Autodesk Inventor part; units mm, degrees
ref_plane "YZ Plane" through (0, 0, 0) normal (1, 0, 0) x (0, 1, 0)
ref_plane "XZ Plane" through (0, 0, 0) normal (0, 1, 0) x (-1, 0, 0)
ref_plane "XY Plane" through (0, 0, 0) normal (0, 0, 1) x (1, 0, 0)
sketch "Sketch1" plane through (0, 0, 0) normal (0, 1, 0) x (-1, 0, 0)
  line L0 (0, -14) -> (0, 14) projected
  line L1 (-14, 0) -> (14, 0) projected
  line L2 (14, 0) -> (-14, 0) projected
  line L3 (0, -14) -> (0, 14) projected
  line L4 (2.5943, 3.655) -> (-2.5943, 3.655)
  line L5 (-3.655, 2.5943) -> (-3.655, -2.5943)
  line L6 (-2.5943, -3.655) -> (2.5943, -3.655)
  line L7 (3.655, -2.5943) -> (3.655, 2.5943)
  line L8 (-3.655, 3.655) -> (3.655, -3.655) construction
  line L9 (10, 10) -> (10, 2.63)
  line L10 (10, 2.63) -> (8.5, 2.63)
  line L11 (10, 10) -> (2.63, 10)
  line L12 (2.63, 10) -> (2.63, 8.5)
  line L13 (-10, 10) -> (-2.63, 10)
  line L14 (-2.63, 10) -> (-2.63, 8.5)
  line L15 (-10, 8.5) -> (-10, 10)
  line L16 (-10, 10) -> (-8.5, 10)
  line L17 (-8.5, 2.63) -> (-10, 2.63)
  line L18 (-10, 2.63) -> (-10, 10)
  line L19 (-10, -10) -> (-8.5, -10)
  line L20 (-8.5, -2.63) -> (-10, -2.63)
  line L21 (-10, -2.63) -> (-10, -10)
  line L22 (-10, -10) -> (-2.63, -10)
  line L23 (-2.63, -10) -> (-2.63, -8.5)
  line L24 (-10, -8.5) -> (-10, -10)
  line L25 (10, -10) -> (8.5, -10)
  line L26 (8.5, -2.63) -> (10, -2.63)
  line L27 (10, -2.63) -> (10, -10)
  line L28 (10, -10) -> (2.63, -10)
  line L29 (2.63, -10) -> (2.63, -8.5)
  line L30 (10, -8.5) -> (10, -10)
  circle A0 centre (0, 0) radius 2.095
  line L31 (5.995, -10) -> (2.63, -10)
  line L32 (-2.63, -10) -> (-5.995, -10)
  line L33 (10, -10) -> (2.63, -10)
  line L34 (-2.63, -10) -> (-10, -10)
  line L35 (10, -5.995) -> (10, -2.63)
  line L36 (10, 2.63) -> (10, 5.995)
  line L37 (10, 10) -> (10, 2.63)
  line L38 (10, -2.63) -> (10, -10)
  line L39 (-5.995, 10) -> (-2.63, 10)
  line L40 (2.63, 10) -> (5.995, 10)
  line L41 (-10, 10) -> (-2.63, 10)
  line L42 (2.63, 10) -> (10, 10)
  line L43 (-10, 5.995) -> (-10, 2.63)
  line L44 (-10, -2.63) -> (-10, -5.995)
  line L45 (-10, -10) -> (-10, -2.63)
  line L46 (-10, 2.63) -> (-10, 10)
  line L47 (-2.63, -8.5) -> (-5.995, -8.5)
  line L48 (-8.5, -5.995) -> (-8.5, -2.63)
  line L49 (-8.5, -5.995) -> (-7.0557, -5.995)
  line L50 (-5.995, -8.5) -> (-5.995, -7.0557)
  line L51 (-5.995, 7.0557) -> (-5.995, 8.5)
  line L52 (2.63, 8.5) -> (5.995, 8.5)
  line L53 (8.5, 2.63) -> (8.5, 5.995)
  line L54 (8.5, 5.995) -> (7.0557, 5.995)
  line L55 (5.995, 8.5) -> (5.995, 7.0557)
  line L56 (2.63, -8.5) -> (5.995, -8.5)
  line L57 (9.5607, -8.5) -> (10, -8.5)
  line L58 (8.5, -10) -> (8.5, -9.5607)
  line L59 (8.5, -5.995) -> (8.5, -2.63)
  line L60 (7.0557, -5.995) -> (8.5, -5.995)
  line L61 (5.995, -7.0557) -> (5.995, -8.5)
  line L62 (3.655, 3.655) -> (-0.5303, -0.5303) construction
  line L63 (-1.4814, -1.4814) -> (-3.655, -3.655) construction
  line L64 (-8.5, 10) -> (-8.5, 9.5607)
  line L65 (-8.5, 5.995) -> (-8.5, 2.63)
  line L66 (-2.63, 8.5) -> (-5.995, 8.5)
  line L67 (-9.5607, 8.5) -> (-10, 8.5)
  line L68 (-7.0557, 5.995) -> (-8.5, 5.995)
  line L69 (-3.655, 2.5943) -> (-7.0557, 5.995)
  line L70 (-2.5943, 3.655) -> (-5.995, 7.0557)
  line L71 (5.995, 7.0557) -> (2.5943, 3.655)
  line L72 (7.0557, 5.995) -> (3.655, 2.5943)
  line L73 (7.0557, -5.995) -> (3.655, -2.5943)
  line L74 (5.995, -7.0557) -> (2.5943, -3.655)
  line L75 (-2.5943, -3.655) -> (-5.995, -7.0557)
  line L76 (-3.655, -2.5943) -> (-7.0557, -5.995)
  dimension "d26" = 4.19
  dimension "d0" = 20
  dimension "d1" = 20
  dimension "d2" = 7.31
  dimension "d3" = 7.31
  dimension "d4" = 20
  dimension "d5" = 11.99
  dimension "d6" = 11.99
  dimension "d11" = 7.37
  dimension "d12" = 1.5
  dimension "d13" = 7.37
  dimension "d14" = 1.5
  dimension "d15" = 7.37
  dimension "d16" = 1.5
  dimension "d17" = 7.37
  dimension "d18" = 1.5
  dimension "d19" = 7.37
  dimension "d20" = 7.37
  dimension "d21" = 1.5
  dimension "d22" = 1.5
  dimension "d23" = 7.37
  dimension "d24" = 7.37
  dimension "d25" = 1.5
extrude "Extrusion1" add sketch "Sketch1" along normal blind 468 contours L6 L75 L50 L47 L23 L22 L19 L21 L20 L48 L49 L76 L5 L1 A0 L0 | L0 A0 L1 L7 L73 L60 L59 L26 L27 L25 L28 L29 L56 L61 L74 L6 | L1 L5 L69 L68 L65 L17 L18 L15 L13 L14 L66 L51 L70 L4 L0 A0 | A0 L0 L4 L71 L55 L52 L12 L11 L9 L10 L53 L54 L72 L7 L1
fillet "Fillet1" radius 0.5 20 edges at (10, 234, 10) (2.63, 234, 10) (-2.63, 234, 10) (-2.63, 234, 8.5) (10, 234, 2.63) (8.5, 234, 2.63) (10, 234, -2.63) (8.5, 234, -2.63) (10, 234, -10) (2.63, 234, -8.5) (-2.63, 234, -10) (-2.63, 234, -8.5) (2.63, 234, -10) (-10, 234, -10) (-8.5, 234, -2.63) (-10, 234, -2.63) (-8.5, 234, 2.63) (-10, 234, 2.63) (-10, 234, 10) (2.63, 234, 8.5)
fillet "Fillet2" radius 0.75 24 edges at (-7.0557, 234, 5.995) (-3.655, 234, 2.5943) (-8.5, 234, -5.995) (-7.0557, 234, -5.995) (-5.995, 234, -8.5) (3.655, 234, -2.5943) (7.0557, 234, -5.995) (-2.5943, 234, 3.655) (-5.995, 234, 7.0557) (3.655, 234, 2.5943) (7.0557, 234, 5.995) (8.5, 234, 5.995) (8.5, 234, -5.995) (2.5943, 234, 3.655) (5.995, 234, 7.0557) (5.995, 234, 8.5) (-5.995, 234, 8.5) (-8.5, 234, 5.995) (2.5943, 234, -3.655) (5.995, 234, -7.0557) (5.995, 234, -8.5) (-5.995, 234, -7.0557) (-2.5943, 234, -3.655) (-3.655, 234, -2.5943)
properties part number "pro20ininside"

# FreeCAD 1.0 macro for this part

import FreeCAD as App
import Part
import Sketcher
Q = App.Units.Quantity


def edges_at(feature, points):
    """Names of the edges that pass closest to the given points."""
    edges = feature.Shape.Edges
    near = lambda p: min(range(len(edges)), key=lambda i: edges[i].distToShape(Part.Vertex(*p))[0])
    return sorted({f"Edge{near(p) + 1}" for p in points})


def add_polygon(sketch, points):
    """Adds a closed chain of lines whose ends are joined by coincident constraints."""
    first, n = sketch.GeometryCount, len(points)
    for a, b in zip(points, points[1:] + points[:1]):
        sketch.addGeometry(Part.LineSegment(App.Vector(*a, 0), App.Vector(*b, 0)), False)
    for i in range(n):
        sketch.addConstraint(Sketcher.Constraint("Coincident", first + i, 2, first + (i + 1) % n, 1))

doc = App.newDocument("Part")
params = doc.addObject("Spreadsheet::Sheet", "Params")
for row, (alias, value) in enumerate([
    ("sketch1_diameter", "4.19 mm"),
    ("sketch1_width", "1.5 mm"),
    ("sketch1_width2", "7.37 mm"),
    ("pad1_length", "468 mm"),
    ("fillet_radius", "0.5 mm"),
    ("fillet2_radius", "0.75 mm"),
], start=1):
    params.set(f"A{row}", alias)
    params.set(f"B{row}", "=" + value)
    params.setAlias(f"B{row}", alias)

body = doc.addObject("PartDesign::Body", "Body")

# Sketch on XZ plane
sketch1 = doc.addObject("Sketcher::SketchObject", "Sketch")
body.addObject(sketch1)
sketch1.AttachmentSupport = (doc.XZ_Plane, [""])
sketch1.MapMode = "FlatFace"
add_polygon(sketch1, [(2.5943, -3.655), (-2.5943, -3.655), (-5.995, -7.0557), (-5.995, -8.5), (-2.63, -8.5), (-2.63, -10), (-10, -10), (-10, -2.63), (-8.5, -2.63), (-8.5, -5.995), (-7.0557, -5.995), (-3.655, -2.5943), (-3.655, 2.5943), (-7.0557, 5.995), (-8.5, 5.995), (-8.5, 2.63), (-10, 2.63), (-10, 10), (-2.63, 10), (-2.63, 8.5), (-5.995, 8.5), (-5.995, 7.0557), (-2.5943, 3.655), (2.5943, 3.655), (5.995, 7.0557), (5.995, 8.5), (2.63, 8.5), (2.63, 10), (10, 10), (10, 2.63), (8.5, 2.63), (8.5, 5.995), (7.0557, 5.995), (3.655, 2.5943), (3.655, -2.5943), (7.0557, -5.995), (8.5, -5.995), (8.5, -2.63), (10, -2.63), (10, -10), (2.63, -10), (2.63, -8.5), (5.995, -8.5), (5.995, -7.0557)])  # lines 0-43
sketch1.addGeometry(Part.Circle(App.Vector(0, 0, 0), App.Vector(0, 0, 1), 2.095), False)  # 44
sketch1.addConstraint(Sketcher.Constraint("Horizontal", 0))
sketch1.addConstraint(Sketcher.Constraint("Vertical", 2))
sketch1.addConstraint(Sketcher.Constraint("Horizontal", 3))
sketch1.addConstraint(Sketcher.Constraint("Vertical", 4))
sketch1.addConstraint(Sketcher.Constraint("Horizontal", 5))
sketch1.addConstraint(Sketcher.Constraint("Vertical", 6))
sketch1.addConstraint(Sketcher.Constraint("Horizontal", 7))
sketch1.addConstraint(Sketcher.Constraint("Vertical", 8))
sketch1.addConstraint(Sketcher.Constraint("Horizontal", 9))
sketch1.addConstraint(Sketcher.Constraint("Vertical", 11))
sketch1.addConstraint(Sketcher.Constraint("Horizontal", 13))
sketch1.addConstraint(Sketcher.Constraint("Vertical", 14))
sketch1.addConstraint(Sketcher.Constraint("Horizontal", 15))
sketch1.addConstraint(Sketcher.Constraint("Vertical", 16))
sketch1.addConstraint(Sketcher.Constraint("Horizontal", 17))
sketch1.addConstraint(Sketcher.Constraint("Vertical", 18))
sketch1.addConstraint(Sketcher.Constraint("Horizontal", 19))
sketch1.addConstraint(Sketcher.Constraint("Vertical", 20))
sketch1.addConstraint(Sketcher.Constraint("Horizontal", 22))
sketch1.addConstraint(Sketcher.Constraint("Vertical", 24))
sketch1.addConstraint(Sketcher.Constraint("Horizontal", 25))
sketch1.addConstraint(Sketcher.Constraint("Vertical", 26))
sketch1.addConstraint(Sketcher.Constraint("Horizontal", 27))
sketch1.addConstraint(Sketcher.Constraint("Vertical", 28))
sketch1.addConstraint(Sketcher.Constraint("Horizontal", 29))
sketch1.addConstraint(Sketcher.Constraint("Vertical", 30))
sketch1.addConstraint(Sketcher.Constraint("Horizontal", 31))
sketch1.addConstraint(Sketcher.Constraint("Vertical", 33))
sketch1.addConstraint(Sketcher.Constraint("Horizontal", 35))
sketch1.addConstraint(Sketcher.Constraint("Vertical", 36))
sketch1.addConstraint(Sketcher.Constraint("Horizontal", 37))
sketch1.addConstraint(Sketcher.Constraint("Vertical", 38))
sketch1.addConstraint(Sketcher.Constraint("Horizontal", 39))
sketch1.addConstraint(Sketcher.Constraint("Vertical", 40))
sketch1.addConstraint(Sketcher.Constraint("Horizontal", 41))
sketch1.addConstraint(Sketcher.Constraint("Vertical", 42))
sketch1.addConstraint(Sketcher.Constraint("Coincident", 44, 3, -1, 1))
sketch1.addConstraint(Sketcher.Constraint("Symmetric", 0, 2, 22, 2, -1, 1))
sketch1.addConstraint(Sketcher.Constraint("Symmetric", 1, 2, 23, 2, -1, 1))
sketch1.addConstraint(Sketcher.Constraint("Symmetric", 3, 2, 25, 2, -1, 1))
sketch1.addConstraint(Sketcher.Constraint("Symmetric", 5, 2, 27, 2, -1, 1))
sketch1.addConstraint(Sketcher.Constraint("Symmetric", 7, 2, 29, 2, -1, 1))
sketch1.addConstraint(Sketcher.Constraint("Symmetric", 9, 2, 31, 2, -1, 1))
sketch1.addConstraint(Sketcher.Constraint("Symmetric", 10, 2, 32, 2, -1, 1))
sketch1.addConstraint(Sketcher.Constraint("Symmetric", 12, 2, 34, 2, -1, 1))
sketch1.addConstraint(Sketcher.Constraint("Symmetric", 14, 2, 36, 2, -1, 1))
sketch1.addConstraint(Sketcher.Constraint("Symmetric", 16, 2, 38, 2, -1, 1))
sketch1.addConstraint(Sketcher.Constraint("Symmetric", 18, 2, 40, 2, -1, 1))
sketch1.addConstraint(Sketcher.Constraint("Symmetric", 20, 2, 42, 2, -1, 1))
sketch1.addConstraint(Sketcher.Constraint("Symmetric", 20, 2, 23, 2, -2))
sketch1.addConstraint(Sketcher.Constraint("Symmetric", 18, 2, 25, 2, -2))
sketch1.addConstraint(Sketcher.Constraint("Symmetric", 16, 2, 27, 2, -2))
sketch1.addConstraint(Sketcher.Constraint("Symmetric", 14, 2, 29, 2, -2))
sketch1.addConstraint(Sketcher.Constraint("Symmetric", 12, 2, 31, 2, -2))
sketch1.addConstraint(Sketcher.Constraint("Parallel", 1, 10))
sketch1.addConstraint(Sketcher.Constraint("Perpendicular", 10, 12))
sketch1.addConstraint(Sketcher.Constraint("Parallel", 12, 21))
sketch1.addConstraint(Sketcher.Constraint("Perpendicular", 32, 34))
sketch1.addConstraint(Sketcher.Constraint("Parallel", 34, 43))
sketch1.addConstraint(Sketcher.Constraint("Horizontal", 11, 2, 32, 2))
sketch1.addConstraint(Sketcher.Constraint("Equal", 35, 2))
sketch1.addConstraint(Sketcher.Constraint("Equal", 37, 4))
sketch1.addConstraint(Sketcher.Constraint("Equal", 39, 6))
sketch1.addConstraint(Sketcher.Constraint("Equal", 41, 8))
sketch1.addConstraint(Sketcher.Constraint("Equal", 22, 11))
sketch1.addConstraint(Sketcher.Constraint("Equal", 1, 10))
sketch1.addConstraint(Sketcher.Constraint("Diameter", 44, Q("4.19 mm")))
sketch1.addConstraint(Sketcher.Constraint("DistanceX", 7, 1, 7, 2, Q("1.5 mm")))
sketch1.addConstraint(Sketcher.Constraint("DistanceX", 5, 2, 5, 1, Q("7.37 mm")))
sketch1.addConstraint(Sketcher.Constraint("DistanceY", 4, 2, -1, 1, Q("10 mm")))
sketch1.addConstraint(Sketcher.Constraint("DistanceX", 3, 1, 3, 2, Q("3.365 mm")))
sketch1.addConstraint(Sketcher.Constraint("DistanceX", 1, 2, 10, 2, Q("2.34 mm")))
sketch1.addConstraint(Sketcher.Constraint("DistanceX", 0, 2, 0, 1, Q("5.1886 mm")))
sketch1.setExpression("Constraints[110]", "Params.sketch1_diameter")
sketch1.setExpression("Constraints[111]", "Params.sketch1_width")
sketch1.setExpression("Constraints[112]", "Params.sketch1_width2")
pad1 = doc.addObject("PartDesign::Pad", "Pad")
body.addObject(pad1)
pad1.Profile = sketch1
pad1.setExpression("Length", "Params.pad1_length")
pad1.Reversed = True
doc.recompute()

fillet = doc.addObject("PartDesign::Fillet", "Fillet")
body.addObject(fillet)
fillet.Base = (pad1, edges_at(pad1, [
    (10, 234, 10),
    (2.63, 234, 10),
    (-2.63, 234, 10),
    (-2.63, 234, 8.5),
    (10, 234, 2.63),
    (8.5, 234, 2.63),
    (10, 234, -2.63),
    (8.5, 234, -2.63),
    (10, 234, -10),
    (2.63, 234, -8.5),
    (-2.63, 234, -10),
    (-2.63, 234, -8.5),
    (2.63, 234, -10),
    (-10, 234, -10),
    (-8.5, 234, -2.63),
    (-10, 234, -2.63),
    (-8.5, 234, 2.63),
    (-10, 234, 2.63),
    (-10, 234, 10),
    (2.63, 234, 8.5),
]))
fillet.setExpression("Radius", "Params.fillet_radius")
doc.recompute()

fillet2 = doc.addObject("PartDesign::Fillet", "Fillet001")
body.addObject(fillet2)
fillet2.Base = (fillet, edges_at(fillet, [
    (-7.056, 234, 5.995),
    (-3.655, 234, 2.594),
    (-8.5, 234, -5.995),
    (-7.056, 234, -5.995),
    (-5.995, 234, -8.5),
    (3.655, 234, -2.594),
    (7.056, 234, -5.995),
    (-2.594, 234, 3.655),
    (-5.995, 234, 7.056),
    (3.655, 234, 2.594),
    (7.056, 234, 5.995),
    (8.5, 234, 5.995),
    (8.5, 234, -5.995),
    (2.594, 234, 3.655),
    (5.995, 234, 7.056),
    (5.995, 234, 8.5),
    (-5.995, 234, 8.5),
    (-8.5, 234, 5.995),
    (2.594, 234, -3.655),
    (5.995, 234, -7.056),
    (5.995, 234, -8.5),
    (-5.995, 234, -7.056),
    (-2.594, 234, -3.655),
    (-3.655, 234, -2.594),
]))
fillet2.setExpression("Radius", "Params.fillet2_radius")

doc.recompute()
